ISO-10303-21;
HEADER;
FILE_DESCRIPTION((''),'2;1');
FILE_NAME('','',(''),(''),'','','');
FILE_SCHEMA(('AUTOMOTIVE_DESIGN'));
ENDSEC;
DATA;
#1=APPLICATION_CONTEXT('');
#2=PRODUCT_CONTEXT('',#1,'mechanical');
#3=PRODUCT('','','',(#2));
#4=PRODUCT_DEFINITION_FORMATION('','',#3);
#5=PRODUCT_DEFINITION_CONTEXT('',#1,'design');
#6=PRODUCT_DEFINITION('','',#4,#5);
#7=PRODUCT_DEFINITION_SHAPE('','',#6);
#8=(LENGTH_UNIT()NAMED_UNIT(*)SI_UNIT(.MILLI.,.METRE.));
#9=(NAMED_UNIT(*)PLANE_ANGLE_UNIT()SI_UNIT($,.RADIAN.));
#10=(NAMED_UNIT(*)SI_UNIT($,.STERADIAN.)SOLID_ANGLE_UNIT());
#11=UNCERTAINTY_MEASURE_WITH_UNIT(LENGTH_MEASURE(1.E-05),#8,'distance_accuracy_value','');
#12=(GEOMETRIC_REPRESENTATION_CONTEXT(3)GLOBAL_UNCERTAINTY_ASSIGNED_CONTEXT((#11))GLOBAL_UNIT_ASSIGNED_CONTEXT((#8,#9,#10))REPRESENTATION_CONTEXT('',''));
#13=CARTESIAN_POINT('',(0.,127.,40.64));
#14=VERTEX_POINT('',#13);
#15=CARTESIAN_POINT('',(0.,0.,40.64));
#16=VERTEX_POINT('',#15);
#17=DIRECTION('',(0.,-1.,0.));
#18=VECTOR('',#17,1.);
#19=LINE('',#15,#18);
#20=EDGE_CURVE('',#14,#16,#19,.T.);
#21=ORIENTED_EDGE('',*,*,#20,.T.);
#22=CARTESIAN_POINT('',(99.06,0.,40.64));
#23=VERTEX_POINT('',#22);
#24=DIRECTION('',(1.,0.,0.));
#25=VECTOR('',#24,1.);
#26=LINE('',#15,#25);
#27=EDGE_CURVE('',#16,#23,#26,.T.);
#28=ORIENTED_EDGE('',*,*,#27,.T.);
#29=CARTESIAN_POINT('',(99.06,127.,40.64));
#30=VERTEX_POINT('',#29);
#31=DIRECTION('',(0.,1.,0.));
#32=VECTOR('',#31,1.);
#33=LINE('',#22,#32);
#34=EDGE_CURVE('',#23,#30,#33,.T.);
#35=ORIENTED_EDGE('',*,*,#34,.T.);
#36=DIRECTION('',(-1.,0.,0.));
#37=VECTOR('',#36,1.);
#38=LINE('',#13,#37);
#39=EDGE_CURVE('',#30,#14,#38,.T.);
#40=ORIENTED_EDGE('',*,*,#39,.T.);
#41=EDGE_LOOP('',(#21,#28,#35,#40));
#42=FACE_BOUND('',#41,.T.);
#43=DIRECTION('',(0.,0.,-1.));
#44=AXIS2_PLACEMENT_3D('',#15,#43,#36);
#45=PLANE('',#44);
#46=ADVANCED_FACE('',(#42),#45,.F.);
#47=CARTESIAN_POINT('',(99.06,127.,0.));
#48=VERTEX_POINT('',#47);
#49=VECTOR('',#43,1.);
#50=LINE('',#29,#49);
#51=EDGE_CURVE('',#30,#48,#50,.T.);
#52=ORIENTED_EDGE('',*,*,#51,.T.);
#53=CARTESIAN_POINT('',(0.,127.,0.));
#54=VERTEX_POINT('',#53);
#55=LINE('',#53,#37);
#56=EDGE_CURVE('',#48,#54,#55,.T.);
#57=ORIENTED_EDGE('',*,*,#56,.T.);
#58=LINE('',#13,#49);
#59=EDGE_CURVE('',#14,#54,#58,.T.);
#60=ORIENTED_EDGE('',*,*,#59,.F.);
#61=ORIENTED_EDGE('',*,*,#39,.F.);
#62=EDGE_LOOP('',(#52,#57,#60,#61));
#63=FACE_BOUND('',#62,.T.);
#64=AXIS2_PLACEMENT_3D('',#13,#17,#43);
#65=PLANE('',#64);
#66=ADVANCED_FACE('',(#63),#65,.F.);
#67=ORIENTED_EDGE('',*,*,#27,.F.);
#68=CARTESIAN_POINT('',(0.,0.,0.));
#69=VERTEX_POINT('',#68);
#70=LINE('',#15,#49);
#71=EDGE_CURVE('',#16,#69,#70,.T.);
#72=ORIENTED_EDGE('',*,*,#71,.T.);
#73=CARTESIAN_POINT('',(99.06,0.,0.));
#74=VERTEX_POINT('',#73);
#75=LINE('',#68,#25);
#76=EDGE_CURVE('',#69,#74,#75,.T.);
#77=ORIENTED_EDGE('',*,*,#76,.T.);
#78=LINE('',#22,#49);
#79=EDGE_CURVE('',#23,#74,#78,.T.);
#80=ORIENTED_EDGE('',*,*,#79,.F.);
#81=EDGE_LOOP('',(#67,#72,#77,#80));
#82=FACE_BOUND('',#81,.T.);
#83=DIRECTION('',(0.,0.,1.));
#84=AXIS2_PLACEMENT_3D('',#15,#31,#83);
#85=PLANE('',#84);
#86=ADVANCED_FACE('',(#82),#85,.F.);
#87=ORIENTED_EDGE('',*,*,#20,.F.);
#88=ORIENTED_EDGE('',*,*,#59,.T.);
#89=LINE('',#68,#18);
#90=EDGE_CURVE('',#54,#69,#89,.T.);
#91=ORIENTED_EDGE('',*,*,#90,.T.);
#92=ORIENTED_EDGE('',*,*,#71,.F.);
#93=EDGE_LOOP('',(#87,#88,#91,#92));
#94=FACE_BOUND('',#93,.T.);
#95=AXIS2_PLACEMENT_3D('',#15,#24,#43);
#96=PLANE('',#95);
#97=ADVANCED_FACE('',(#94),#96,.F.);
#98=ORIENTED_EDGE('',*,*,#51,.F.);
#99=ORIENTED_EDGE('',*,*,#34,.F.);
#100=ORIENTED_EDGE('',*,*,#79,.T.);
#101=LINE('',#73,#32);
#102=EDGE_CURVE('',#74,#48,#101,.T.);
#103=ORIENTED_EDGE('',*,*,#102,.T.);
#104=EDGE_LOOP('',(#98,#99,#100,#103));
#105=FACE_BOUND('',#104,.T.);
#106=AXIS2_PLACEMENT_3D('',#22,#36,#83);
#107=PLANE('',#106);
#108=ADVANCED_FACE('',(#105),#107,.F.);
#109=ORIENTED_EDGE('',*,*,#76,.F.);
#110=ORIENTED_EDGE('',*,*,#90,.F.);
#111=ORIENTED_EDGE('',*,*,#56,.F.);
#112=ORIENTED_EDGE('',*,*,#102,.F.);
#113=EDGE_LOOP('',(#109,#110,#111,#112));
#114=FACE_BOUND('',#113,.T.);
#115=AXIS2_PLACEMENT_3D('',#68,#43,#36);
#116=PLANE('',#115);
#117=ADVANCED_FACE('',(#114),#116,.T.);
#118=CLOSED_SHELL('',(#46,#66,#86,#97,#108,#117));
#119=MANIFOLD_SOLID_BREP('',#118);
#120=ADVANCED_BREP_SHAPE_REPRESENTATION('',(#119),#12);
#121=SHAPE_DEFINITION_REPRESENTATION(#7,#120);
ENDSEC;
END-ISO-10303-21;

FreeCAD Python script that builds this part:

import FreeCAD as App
import Part
import Sketcher
from FreeCAD import Vector
Q = App.Units.Quantity

doc = App.newDocument("Part")
body = doc.addObject("PartDesign::Body", "Body")

sketch1 = body.newObject("Sketcher::SketchObject", "Sketch")
sketch1.AttachmentSupport = (doc.getObject("XY_Plane"), [""])
sketch1.MapMode = "FlatFace"
sketch1.addGeometry(Part.LineSegment(Vector(0, 127, 0), Vector(0, 0, 0)), False)
sketch1.addGeometry(Part.LineSegment(Vector(0, 0, 0), Vector(99, 0, 0)), False)
sketch1.addGeometry(Part.LineSegment(Vector(99, 0, 0), Vector(99, 127, 0)), False)
sketch1.addGeometry(Part.LineSegment(Vector(99, 127, 0), Vector(0, 127, 0)), False)
sketch1.addConstraint(Sketcher.Constraint("Coincident", 0, 2, 1, 1))
sketch1.addConstraint(Sketcher.Constraint("Coincident", 1, 2, 2, 1))
sketch1.addConstraint(Sketcher.Constraint("Coincident", 2, 2, 3, 1))
sketch1.addConstraint(Sketcher.Constraint("Coincident", 3, 2, 0, 1))
sketch1.addConstraint(Sketcher.Constraint("Vertical", 0))
sketch1.addConstraint(Sketcher.Constraint("Horizontal", 1))
sketch1.addConstraint(Sketcher.Constraint("Vertical", 2))
sketch1.addConstraint(Sketcher.Constraint("Horizontal", 3))
sketch1.addConstraint(Sketcher.Constraint("Coincident", 0, 2, -1, 1))
sketch1.addConstraint(Sketcher.Constraint("DistanceY", 0, 2, 0, 1, Q("5 in")))
sketch1.addConstraint(Sketcher.Constraint("DistanceX", 1, 1, 1, 2, Q("3.9 in")))
pad1 = body.newObject("PartDesign::Pad", "Pad")
pad1.Profile = sketch1
pad1.Length = Q("1.6 in")

doc.recompute()
